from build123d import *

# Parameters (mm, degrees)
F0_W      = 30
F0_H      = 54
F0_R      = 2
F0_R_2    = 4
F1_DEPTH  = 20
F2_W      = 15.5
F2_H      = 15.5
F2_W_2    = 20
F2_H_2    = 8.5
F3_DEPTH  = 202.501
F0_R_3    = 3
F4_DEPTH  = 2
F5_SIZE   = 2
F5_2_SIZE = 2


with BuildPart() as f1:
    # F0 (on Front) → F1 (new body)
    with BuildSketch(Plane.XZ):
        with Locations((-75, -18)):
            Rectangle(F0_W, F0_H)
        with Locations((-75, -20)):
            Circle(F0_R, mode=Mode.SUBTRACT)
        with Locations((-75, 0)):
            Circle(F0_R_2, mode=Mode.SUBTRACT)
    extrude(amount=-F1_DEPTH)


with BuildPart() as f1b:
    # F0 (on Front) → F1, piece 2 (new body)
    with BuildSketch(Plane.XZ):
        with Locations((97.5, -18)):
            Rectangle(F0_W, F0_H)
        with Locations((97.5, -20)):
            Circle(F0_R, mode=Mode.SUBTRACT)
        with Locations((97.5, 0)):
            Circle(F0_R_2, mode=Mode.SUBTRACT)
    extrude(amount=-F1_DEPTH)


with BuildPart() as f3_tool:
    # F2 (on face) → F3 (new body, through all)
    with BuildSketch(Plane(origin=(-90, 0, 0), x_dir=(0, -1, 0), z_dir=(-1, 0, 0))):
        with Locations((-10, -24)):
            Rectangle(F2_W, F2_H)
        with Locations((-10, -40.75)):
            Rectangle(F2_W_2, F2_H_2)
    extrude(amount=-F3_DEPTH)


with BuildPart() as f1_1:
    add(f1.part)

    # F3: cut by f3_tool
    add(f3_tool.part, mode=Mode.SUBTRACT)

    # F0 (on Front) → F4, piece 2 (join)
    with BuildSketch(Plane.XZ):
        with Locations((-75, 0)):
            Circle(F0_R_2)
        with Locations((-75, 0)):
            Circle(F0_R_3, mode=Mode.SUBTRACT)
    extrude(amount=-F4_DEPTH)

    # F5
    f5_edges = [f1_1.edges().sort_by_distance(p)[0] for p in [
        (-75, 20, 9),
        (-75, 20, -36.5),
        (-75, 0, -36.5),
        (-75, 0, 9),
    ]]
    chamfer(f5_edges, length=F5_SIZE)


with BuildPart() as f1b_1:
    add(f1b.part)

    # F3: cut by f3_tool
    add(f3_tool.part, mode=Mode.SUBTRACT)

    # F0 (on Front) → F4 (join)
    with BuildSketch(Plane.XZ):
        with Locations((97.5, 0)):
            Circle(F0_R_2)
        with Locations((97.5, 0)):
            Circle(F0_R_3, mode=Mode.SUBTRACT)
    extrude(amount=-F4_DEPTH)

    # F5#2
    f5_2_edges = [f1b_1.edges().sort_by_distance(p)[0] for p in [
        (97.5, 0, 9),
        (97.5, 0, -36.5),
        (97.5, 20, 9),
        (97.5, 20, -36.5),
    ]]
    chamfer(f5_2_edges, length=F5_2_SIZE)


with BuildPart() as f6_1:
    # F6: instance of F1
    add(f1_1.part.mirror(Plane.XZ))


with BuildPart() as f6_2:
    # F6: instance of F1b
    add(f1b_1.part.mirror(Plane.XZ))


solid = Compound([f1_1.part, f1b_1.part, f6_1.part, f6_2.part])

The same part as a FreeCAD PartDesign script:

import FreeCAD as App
import Part
import Sketcher

V = App.Vector
Q = App.Units.Quantity


def edges_at(feature, points):
    """Names of the edges that pass closest to the given points."""
    edges = feature.Shape.Edges
    near = lambda p: min(range(len(edges)), key=lambda i: edges[i].distToShape(Part.Vertex(*p))[0])
    return sorted({f"Edge{near(p) + 1}" for p in points})


def add_polygon(sketch, points):
    """Adds a closed chain of lines whose ends are joined by coincident constraints."""
    first, n = sketch.GeometryCount, len(points)
    for a, b in zip(points, points[1:] + points[:1]):
        sketch.addGeometry(Part.LineSegment(App.Vector(*a, 0), App.Vector(*b, 0)), False)
    for i in range(n):
        sketch.addConstraint(Sketcher.Constraint("Coincident", first + i, 2, first + (i + 1) % n, 1))

doc = App.newDocument("Part")
params = doc.addObject("Spreadsheet::Sheet", "Params")
for row, (alias, value) in enumerate([
    ("sketch1_diameter", "4 mm"),
    ("sketch1_diameter2", "8 mm"),
    ("sketch1_width", "30 mm"),
    ("sketch1_height", "54 mm"),
    ("pad1_length", "20 mm"),
    ("sketch2_diameter", "4 mm"),
    ("sketch2_diameter2", "8 mm"),
    ("sketch2_width", "30 mm"),
    ("sketch2_height", "54 mm"),
    ("pad2_length", "20 mm"),
    ("sketch3_width", "20 mm"),
    ("sketch3_width2", "15.5 mm"),
    ("sketch3_height", "8.5 mm"),
    ("pad3_length", "202.501 mm"),
    ("sketch4_diameter", "8 mm"),
    ("sketch4_diameter2", "6 mm"),
    ("pad4_length", "2 mm"),
    ("chamfer_size", "2 mm"),
    ("sketch5_diameter", "8 mm"),
    ("sketch5_diameter2", "6 mm"),
    ("pad5_length", "2 mm"),
    ("chamfer2_size", "2 mm"),
], start=1):
    params.set(f"A{row}", alias)
    params.set(f"B{row}", "=" + value)
    params.setAlias(f"B{row}", alias)

body = doc.addObject("PartDesign::Body", "Body")

sketch1 = doc.addObject("Sketcher::SketchObject", "Sketch")
body.addObject(sketch1)
sketch1.AttachmentSupport = (doc.XZ_Plane, [""])
sketch1.MapMode = "FlatFace"
add_polygon(sketch1, [(-90, 9), (-90, -45), (-60, -45), (-60, 9)])
sketch1.addGeometry(Part.Circle(V(-75, -20, 0), V(0, 0, 1), 2), False)
sketch1.addGeometry(Part.Circle(V(-75, 0, 0), V(0, 0, 1), 4), False)
sketch1.addConstraint(Sketcher.Constraint("Vertical", 0))
sketch1.addConstraint(Sketcher.Constraint("Horizontal", 1))
sketch1.addConstraint(Sketcher.Constraint("Vertical", 2))
sketch1.addConstraint(Sketcher.Constraint("Horizontal", 3))
sketch1.addConstraint(Sketcher.Constraint("PointOnObject", 5, 3, -1))
sketch1.addConstraint(Sketcher.Constraint("Vertical", 4, 3, 5, 3))
sketch1.addConstraint(Sketcher.Constraint("Diameter", 4, Q("4 mm")))
sketch1.addConstraint(Sketcher.Constraint("Diameter", 5, Q("8 mm")))
sketch1.addConstraint(Sketcher.Constraint("DistanceX", 1, 1, 1, 2, Q("30 mm")))
sketch1.addConstraint(Sketcher.Constraint("DistanceY", 0, 2, 0, 1, Q("54 mm")))
sketch1.addConstraint(Sketcher.Constraint("DistanceX", 4, 3, -1, 1, Q("75 mm")))
sketch1.addConstraint(Sketcher.Constraint("DistanceY", 4, 3, -1, 1, Q("20 mm")))
sketch1.addConstraint(Sketcher.Constraint("DistanceX", 0, 2, -1, 1, Q("90 mm")))
sketch1.addConstraint(Sketcher.Constraint("DistanceY", 0, 2, -1, 1, Q("45 mm")))
sketch1.setExpression("Constraints[10]", "Params.sketch1_diameter")
sketch1.setExpression("Constraints[11]", "Params.sketch1_diameter2")
sketch1.setExpression("Constraints[12]", "Params.sketch1_width")
sketch1.setExpression("Constraints[13]", "Params.sketch1_height")
pad1 = doc.addObject("PartDesign::Pad", "Pad")
body.addObject(pad1)
pad1.Profile = sketch1
pad1.setExpression("Length", "Params.pad1_length")
pad1.Reversed = True
body2 = doc.addObject("PartDesign::Body", "Body001")

sketch2 = doc.addObject("Sketcher::SketchObject", "Sketch001")
body2.addObject(sketch2)
sketch2.AttachmentSupport = (doc.getObject("XZ_Plane001"), [""])
sketch2.MapMode = "FlatFace"
add_polygon(sketch2, [(82.5, 9), (82.5, -45), (112.5, -45), (112.5, 9)])
sketch2.addGeometry(Part.Circle(V(97.5, -20, 0), V(0, 0, 1), 2), False)
sketch2.addGeometry(Part.Circle(V(97.5, 0, 0), V(0, 0, 1), 4), False)
sketch2.addConstraint(Sketcher.Constraint("Vertical", 0))
sketch2.addConstraint(Sketcher.Constraint("Horizontal", 1))
sketch2.addConstraint(Sketcher.Constraint("Vertical", 2))
sketch2.addConstraint(Sketcher.Constraint("Horizontal", 3))
sketch2.addConstraint(Sketcher.Constraint("PointOnObject", 5, 3, -1))
sketch2.addConstraint(Sketcher.Constraint("Vertical", 4, 3, 5, 3))
sketch2.addConstraint(Sketcher.Constraint("Diameter", 4, Q("4 mm")))
sketch2.addConstraint(Sketcher.Constraint("Diameter", 5, Q("8 mm")))
sketch2.addConstraint(Sketcher.Constraint("DistanceX", 1, 1, 1, 2, Q("30 mm")))
sketch2.addConstraint(Sketcher.Constraint("DistanceY", 0, 2, 0, 1, Q("54 mm")))
sketch2.addConstraint(Sketcher.Constraint("DistanceY", 4, 3, -1, 1, Q("20 mm")))
sketch2.addConstraint(Sketcher.Constraint("DistanceY", 0, 2, -1, 1, Q("45 mm")))
sketch2.addConstraint(Sketcher.Constraint("DistanceX", 0, 2, 4, 3, Q("15 mm")))
sketch2.addConstraint(Sketcher.Constraint("DistanceX", -1, 1, 4, 3, Q("97.5 mm")))
sketch2.setExpression("Constraints[10]", "Params.sketch2_diameter")
sketch2.setExpression("Constraints[11]", "Params.sketch2_diameter2")
sketch2.setExpression("Constraints[12]", "Params.sketch2_width")
sketch2.setExpression("Constraints[13]", "Params.sketch2_height")
pad2 = doc.addObject("PartDesign::Pad", "Pad001")
body2.addObject(pad2)
pad2.Profile = sketch2
pad2.setExpression("Length", "Params.pad2_length")
pad2.Reversed = True
body3 = doc.addObject("PartDesign::Body", "Body002")
body3.AllowCompound = True

sketch3 = doc.addObject("Sketcher::SketchObject", "Sketch002")
body3.addObject(sketch3)
sketch3.AttachmentSupport = (doc.getObject("YZ_Plane002"), [""])
sketch3.MapMode = "FlatFace"
sketch3.AttachmentOffset = App.Placement(V(0, 0, -90), App.Rotation())
add_polygon(sketch3, [(17.75, -16.25), (17.75, -31.75), (2.25, -31.75), (2.25, -16.25)])
add_polygon(sketch3, [(20, -36.5), (20, -45), (0, -45), (0, -36.5)])
sketch3.addConstraint(Sketcher.Constraint("Vertical", 0))
sketch3.addConstraint(Sketcher.Constraint("Horizontal", 1))
sketch3.addConstraint(Sketcher.Constraint("Vertical", 2))
sketch3.addConstraint(Sketcher.Constraint("Horizontal", 3))
sketch3.addConstraint(Sketcher.Constraint("Vertical", 4))
sketch3.addConstraint(Sketcher.Constraint("Horizontal", 5))
sketch3.addConstraint(Sketcher.Constraint("Vertical", 6))
sketch3.addConstraint(Sketcher.Constraint("Horizontal", 7))
sketch3.addConstraint(Sketcher.Constraint("PointOnObject", 5, 2, -2))
sketch3.addConstraint(Sketcher.Constraint("Equal", 3, 0))
sketch3.addConstraint(Sketcher.Constraint("DistanceX", 5, 2, 5, 1, Q("20 mm")))
sketch3.addConstraint(Sketcher.Constraint("DistanceX", 1, 2, 1, 1, Q("15.5 mm")))
sketch3.addConstraint(Sketcher.Constraint("DistanceY", 4, 2, 4, 1, Q("8.5 mm")))
sketch3.addConstraint(Sketcher.Constraint("DistanceY", 4, 2, -1, 1, Q("45 mm")))
sketch3.addConstraint(Sketcher.Constraint("DistanceX", -1, 1, 0, 2, Q("17.75 mm")))
sketch3.addConstraint(Sketcher.Constraint("DistanceY", 0, 2, -1, 1, Q("31.75 mm")))
sketch3.setExpression("Constraints[18]", "Params.sketch3_width")
sketch3.setExpression("Constraints[19]", "Params.sketch3_width2")
sketch3.setExpression("Constraints[20]", "Params.sketch3_height")
pad3 = doc.addObject("PartDesign::Pad", "Pad002")
body3.addObject(pad3)
pad3.Profile = sketch3
pad3.setExpression("Length", "Params.pad3_length")
doc.recompute()

body4 = doc.addObject("PartDesign::Body", "Body003")
body4.BaseFeature = body3
boolean = doc.addObject("PartDesign::Boolean", "Boolean")
body.addObject(boolean)
boolean.Type = "Cut"
boolean.addObjects([body4])
doc.recompute()

sketch4 = doc.addObject("Sketcher::SketchObject", "Sketch003")
body.addObject(sketch4)
sketch4.AttachmentSupport = (doc.XZ_Plane, [""])
sketch4.MapMode = "FlatFace"
sketch4.addGeometry(Part.Circle(V(-75, 0, 0), V(0, 0, 1), 4), False)
sketch4.addGeometry(Part.Circle(V(-75, 0, 0), V(0, 0, 1), 3), False)
sketch4.addConstraint(Sketcher.Constraint("Coincident", 1, 3, 0, 3))
sketch4.addConstraint(Sketcher.Constraint("PointOnObject", 0, 3, -1))
sketch4.addConstraint(Sketcher.Constraint("Diameter", 0, Q("8 mm")))
sketch4.addConstraint(Sketcher.Constraint("Diameter", 1, Q("6 mm")))
sketch4.addConstraint(Sketcher.Constraint("DistanceX", 0, 3, -1, 1, Q("75 mm")))
sketch4.setExpression("Constraints[2]", "Params.sketch4_diameter")
sketch4.setExpression("Constraints[3]", "Params.sketch4_diameter2")
pad4 = doc.addObject("PartDesign::Pad", "Pad003")
body.addObject(pad4)
pad4.Profile = sketch4
pad4.setExpression("Length", "Params.pad4_length")
pad4.Reversed = True
doc.recompute()

chamfer = doc.addObject("PartDesign::Chamfer", "Chamfer")
body.addObject(chamfer)
chamfer.Base = (pad4, edges_at(pad4, [
    (-75, 20, 9),
    (-75, 20, -36.5),
    (-75, 0, -36.5),
    (-75, 0, 9),
]))
chamfer.setExpression("Size", "Params.chamfer_size")
doc.recompute()

boolean2 = doc.addObject("PartDesign::Boolean", "Boolean001")
body2.addObject(boolean2)
boolean2.Type = "Cut"
boolean2.addObjects([body3])

sketch5 = doc.addObject("Sketcher::SketchObject", "Sketch004")
body2.addObject(sketch5)
sketch5.AttachmentSupport = (doc.getObject("XZ_Plane001"), [""])
sketch5.MapMode = "FlatFace"
sketch5.addGeometry(Part.Circle(V(97.5, 0, 0), V(0, 0, 1), 4), False)
sketch5.addGeometry(Part.Circle(V(97.5, 0, 0), V(0, 0, 1), 3), False)
sketch5.addConstraint(Sketcher.Constraint("Coincident", 1, 3, 0, 3))
sketch5.addConstraint(Sketcher.Constraint("PointOnObject", 0, 3, -1))
sketch5.addConstraint(Sketcher.Constraint("Diameter", 0, Q("8 mm")))
sketch5.addConstraint(Sketcher.Constraint("Diameter", 1, Q("6 mm")))
sketch5.addConstraint(Sketcher.Constraint("DistanceX", -1, 1, 0, 3, Q("97.5 mm")))
sketch5.setExpression("Constraints[2]", "Params.sketch5_diameter")
sketch5.setExpression("Constraints[3]", "Params.sketch5_diameter2")
pad5 = doc.addObject("PartDesign::Pad", "Pad004")
body2.addObject(pad5)
pad5.Profile = sketch5
pad5.setExpression("Length", "Params.pad5_length")
pad5.Reversed = True
doc.recompute()

chamfer2 = doc.addObject("PartDesign::Chamfer", "Chamfer001")
body2.addObject(chamfer2)
chamfer2.Base = (pad5, edges_at(pad5, [
    (97.5, 0, 9),
    (97.5, 0, -36.5),
    (97.5, 20, 9),
    (97.5, 20, -36.5),
]))
chamfer2.setExpression("Size", "Params.chamfer2_size")
body5 = doc.addObject("PartDesign::Body", "Body004")
doc.recompute()

mirroring = doc.addObject("Part::Mirroring", "Mirroring")
mirroring.Source = body
mirroring.Base = V(0, 0, 0)
mirroring.Normal = V(0, -1, 0)
body5.BaseFeature = mirroring
doc.recompute()
body6 = doc.addObject("PartDesign::Body", "Body005")
doc.recompute()

mirroring2 = doc.addObject("Part::Mirroring", "Mirroring001")
mirroring2.Source = body2
mirroring2.Base = V(0, 0, 0)
mirroring2.Normal = V(0, -1, 0)
body6.BaseFeature = mirroring2
doc.recompute()
mirroring.Visibility = False
mirroring2.Visibility = False

doc.recompute()
